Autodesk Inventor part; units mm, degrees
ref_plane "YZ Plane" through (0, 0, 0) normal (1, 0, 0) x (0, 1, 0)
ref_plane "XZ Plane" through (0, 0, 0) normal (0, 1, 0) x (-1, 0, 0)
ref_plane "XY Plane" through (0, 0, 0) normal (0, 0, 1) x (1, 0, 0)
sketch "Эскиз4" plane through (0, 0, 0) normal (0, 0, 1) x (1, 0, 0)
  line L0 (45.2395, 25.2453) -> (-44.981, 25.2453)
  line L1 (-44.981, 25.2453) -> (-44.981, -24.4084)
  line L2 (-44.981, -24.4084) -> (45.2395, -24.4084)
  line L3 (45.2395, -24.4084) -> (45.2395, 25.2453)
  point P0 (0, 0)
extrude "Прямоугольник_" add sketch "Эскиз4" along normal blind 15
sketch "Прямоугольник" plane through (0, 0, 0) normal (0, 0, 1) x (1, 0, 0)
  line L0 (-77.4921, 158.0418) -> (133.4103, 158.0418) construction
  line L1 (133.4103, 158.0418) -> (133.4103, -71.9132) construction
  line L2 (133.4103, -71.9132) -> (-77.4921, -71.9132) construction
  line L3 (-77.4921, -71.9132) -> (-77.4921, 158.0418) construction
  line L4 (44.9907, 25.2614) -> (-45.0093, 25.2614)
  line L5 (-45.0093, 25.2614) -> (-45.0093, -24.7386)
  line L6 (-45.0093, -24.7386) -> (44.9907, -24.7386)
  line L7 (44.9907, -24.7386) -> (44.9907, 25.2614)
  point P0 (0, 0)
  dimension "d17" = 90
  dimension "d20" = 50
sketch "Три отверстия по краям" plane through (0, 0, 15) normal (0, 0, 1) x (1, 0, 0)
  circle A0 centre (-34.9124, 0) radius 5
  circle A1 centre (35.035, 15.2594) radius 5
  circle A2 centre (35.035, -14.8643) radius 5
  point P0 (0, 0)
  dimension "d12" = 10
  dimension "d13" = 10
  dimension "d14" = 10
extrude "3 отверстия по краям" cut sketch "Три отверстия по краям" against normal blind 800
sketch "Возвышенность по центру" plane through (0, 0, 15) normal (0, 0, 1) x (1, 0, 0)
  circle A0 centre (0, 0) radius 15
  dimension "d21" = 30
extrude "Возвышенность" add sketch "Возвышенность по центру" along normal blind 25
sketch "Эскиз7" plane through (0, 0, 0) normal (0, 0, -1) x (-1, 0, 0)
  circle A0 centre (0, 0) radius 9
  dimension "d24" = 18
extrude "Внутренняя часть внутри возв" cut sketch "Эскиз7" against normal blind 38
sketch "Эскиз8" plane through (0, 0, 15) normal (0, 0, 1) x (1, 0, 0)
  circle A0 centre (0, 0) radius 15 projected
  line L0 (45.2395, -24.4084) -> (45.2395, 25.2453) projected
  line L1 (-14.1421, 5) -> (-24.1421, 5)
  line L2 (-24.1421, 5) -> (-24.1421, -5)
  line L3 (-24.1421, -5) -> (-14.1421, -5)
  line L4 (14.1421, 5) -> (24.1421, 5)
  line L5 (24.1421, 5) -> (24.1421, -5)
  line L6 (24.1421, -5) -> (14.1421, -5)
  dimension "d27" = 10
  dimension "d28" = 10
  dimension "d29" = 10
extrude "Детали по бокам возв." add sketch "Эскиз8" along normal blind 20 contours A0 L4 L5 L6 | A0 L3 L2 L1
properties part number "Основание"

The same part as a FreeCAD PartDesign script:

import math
import FreeCAD as App
import Part
import Sketcher
from FreeCAD import Vector


def add_polygon(sketch, points):
    """Adds a closed chain of lines whose ends are joined by coincident constraints."""
    first, n = sketch.GeometryCount, len(points)
    for a, b in zip(points, points[1:] + points[:1]):
        sketch.addGeometry(Part.LineSegment(App.Vector(*a, 0), App.Vector(*b, 0)), False)
    for i in range(n):
        sketch.addConstraint(Sketcher.Constraint("Coincident", first + i, 2, first + (i + 1) % n, 1))

doc = App.newDocument("Part")
params = doc.addObject("Spreadsheet::Sheet", "Params")
for row, (alias, value) in enumerate([
    ("pad1_length", "15 mm"),
    ("sketch2_diameter", "10 mm"),
    ("pocket1_length", "800 mm"),
    ("sketch3_diameter", "30 mm"),
    ("pad2_length", "25 mm"),
    ("sketch4_diameter", "18 mm"),
    ("pocket2_length", "38 mm"),
    ("sketch5_width", "10 mm"),
    ("sketch5_radius", "15 mm"),
    ("pad3_length", "20 mm"),
], start=1):
    params.set(f"A{row}", alias)
    params.set(f"B{row}", "=" + value)
    params.setAlias(f"B{row}", alias)

body = doc.addObject("PartDesign::Body", "Body")

# Sketch on XY plane
sketch1 = body.newObject("Sketcher::SketchObject", "Sketch")
sketch1.AttachmentSupport = (doc.getObject("XY_Plane"), [""])
sketch1.MapMode = "FlatFace"
add_polygon(sketch1, [(45, -24), (45, 25), (-45, 25), (-45, -24)])  # lines 0-3
sketch1.addConstraint([
    Sketcher.Constraint("Vertical", 0),
    Sketcher.Constraint("Horizontal", 1),
    Sketcher.Constraint("Vertical", 2),
    Sketcher.Constraint("Horizontal", 3),
    Sketcher.Constraint("DistanceX", 1, 2, 1, 1, 90.2205),
    Sketcher.Constraint("DistanceY", 0, 1, 0, 2, 49.6537),
    Sketcher.Constraint("DistanceX", 1, 2, -1, 1, 44.981),
    Sketcher.Constraint("DistanceY", -1, 1, 0, 2, 25.2453),
])
pad1 = body.newObject("PartDesign::Pad", "Pad")
pad1.Profile = sketch1
pad1.setExpression("Length", "Params.pad1_length")

# Sketch on XY plane
sketch2 = body.newObject("Sketcher::SketchObject", "Sketch001")
sketch2.AttachmentSupport = (doc.getObject("XY_Plane"), [""])
sketch2.MapMode = "FlatFace"
sketch2.AttachmentOffset = App.Placement(Vector(0, 0, 15), App.Rotation())
sketch2.addGeometry([
    Part.Circle(Vector(-35, 0, 0), Vector(0, 0, 1), 5),
    Part.Circle(Vector(35, 15, 0), Vector(0, 0, 1), 5),
    Part.Circle(Vector(35, -15, 0), Vector(0, 0, 1), 5),
], False)
sketch2.addConstraint([
    Sketcher.Constraint("Equal", 0, 1),
    Sketcher.Constraint("Equal", 1, 2),
    Sketcher.Constraint("PointOnObject", 0, 3, -1),
    Sketcher.Constraint("Vertical", 1, 3, 2, 3),
    Sketcher.Constraint("Diameter", 0, 10.0),
    Sketcher.Constraint("DistanceX", -1, 1, 1, 3, 35.035),
    Sketcher.Constraint("DistanceX", 0, 3, -1, 1, 34.9124),
    Sketcher.Constraint("DistanceY", -1, 1, 1, 3, 15.2594),
    Sketcher.Constraint("DistanceY", 2, 3, -1, 1, 14.8643),
])
sketch2.setExpression("Constraints[4]", "Params.sketch2_diameter")
pocket1 = body.newObject("PartDesign::Pocket", "Pocket")
pocket1.Profile = sketch2
pocket1.setExpression("Length", "Params.pocket1_length")

# Sketch on XY plane
sketch3 = body.newObject("Sketcher::SketchObject", "Sketch002")
sketch3.AttachmentSupport = (doc.getObject("XY_Plane"), [""])
sketch3.MapMode = "FlatFace"
sketch3.AttachmentOffset = App.Placement(Vector(0, 0, 15), App.Rotation())
sketch3.addGeometry(Part.Circle(Vector(0, 0, 0), Vector(0, 0, 1), 15), False)
sketch3.addConstraint([
    Sketcher.Constraint("Coincident", 0, 3, -1, 1),
    Sketcher.Constraint("Diameter", 0, 30.0),
])
sketch3.setExpression("Constraints[1]", "Params.sketch3_diameter")
pad2 = body.newObject("PartDesign::Pad", "Pad001")
pad2.Profile = sketch3
pad2.setExpression("Length", "Params.pad2_length")

# Sketch on XY plane
sketch4 = body.newObject("Sketcher::SketchObject", "Sketch003")
sketch4.AttachmentSupport = (doc.getObject("XY_Plane"), [""])
sketch4.MapMode = "FlatFace"
sketch4.addGeometry(Part.Circle(Vector(0, 0, 0), Vector(0, 0, 1), 9), False)
sketch4.addConstraint([
    Sketcher.Constraint("Coincident", 0, 3, -1, 1),
    Sketcher.Constraint("Diameter", 0, 18.0),
])
sketch4.setExpression("Constraints[1]", "Params.sketch4_diameter")
pocket2 = body.newObject("PartDesign::Pocket", "Pocket001")
pocket2.Profile = sketch4
pocket2.setExpression("Length", "Params.pocket2_length")
pocket2.Reversed = True

# Sketch on XY plane
sketch5 = body.newObject("Sketcher::SketchObject", "Sketch004")
sketch5.AttachmentSupport = (doc.getObject("XY_Plane"), [""])
sketch5.MapMode = "FlatFace"
sketch5.AttachmentOffset = App.Placement(Vector(0, 0, 15), App.Rotation())
sketch5.addGeometry([
    Part.ArcOfCircle(Part.Circle(Vector(0, 0, 0), Vector(0, 0, 1), 15), math.radians(-19), math.radians(19)),  # 0
    Part.LineSegment(Vector(14, -5, 0), Vector(24, -5, 0)),  # 1
    Part.LineSegment(Vector(24, -5, 0), Vector(24, 5, 0)),  # 2
    Part.LineSegment(Vector(24, 5, 0), Vector(14, 5, 0)),  # 3
    Part.ArcOfCircle(Part.Circle(Vector(0, 0, 0), Vector(0, 0, 1), 15), math.radians(161), math.radians(199)),  # 4
    Part.LineSegment(Vector(-14, 5, 0), Vector(-24, 5, 0)),  # 5
    Part.LineSegment(Vector(-24, 5, 0), Vector(-24, -5, 0)),  # 6
    Part.LineSegment(Vector(-24, -5, 0), Vector(-14, -5, 0)),  # 7
], False)
sketch5.addConstraint([
    Sketcher.Constraint("Coincident", 0, 1, 1, 1),
    Sketcher.Constraint("Coincident", 1, 2, 2, 1),
    Sketcher.Constraint("Coincident", 2, 2, 3, 1),
    Sketcher.Constraint("Coincident", 3, 2, 0, 2),
    Sketcher.Constraint("Coincident", 4, 1, 5, 1),
    Sketcher.Constraint("Coincident", 5, 2, 6, 1),
    Sketcher.Constraint("Coincident", 6, 2, 7, 1),
    Sketcher.Constraint("Coincident", 7, 2, 4, 2),
    Sketcher.Constraint("Horizontal", 1),
    Sketcher.Constraint("Vertical", 2),
    Sketcher.Constraint("Horizontal", 3),
    Sketcher.Constraint("Horizontal", 5),
    Sketcher.Constraint("Vertical", 6),
    Sketcher.Constraint("Horizontal", 7),
    Sketcher.Constraint("Coincident", 0, 3, -1, 1),
    Sketcher.Constraint("Coincident", 4, 3, -1, 1),
    Sketcher.Constraint("Equal", 0, 4),
    Sketcher.Constraint("Symmetric", 1, 2, 5, 2, -1, 1),
    Sketcher.Constraint("Horizontal", 3, 2, 4, 1),
    Sketcher.Constraint("Horizontal", 1, 2, 6, 2),
    Sketcher.Constraint("Equal", 7, 2),
    Sketcher.Constraint("DistanceX", 1, 1, 1, 2, 10.0),
    Sketcher.Constraint("Radius", 0, 15.0),
])
sketch5.setExpression("Constraints[21]", "Params.sketch5_width")
sketch5.setExpression("Constraints[22]", "Params.sketch5_radius")
pad3 = body.newObject("PartDesign::Pad", "Pad002")
pad3.Profile = sketch5
pad3.setExpression("Length", "Params.pad3_length")

doc.recompute()
